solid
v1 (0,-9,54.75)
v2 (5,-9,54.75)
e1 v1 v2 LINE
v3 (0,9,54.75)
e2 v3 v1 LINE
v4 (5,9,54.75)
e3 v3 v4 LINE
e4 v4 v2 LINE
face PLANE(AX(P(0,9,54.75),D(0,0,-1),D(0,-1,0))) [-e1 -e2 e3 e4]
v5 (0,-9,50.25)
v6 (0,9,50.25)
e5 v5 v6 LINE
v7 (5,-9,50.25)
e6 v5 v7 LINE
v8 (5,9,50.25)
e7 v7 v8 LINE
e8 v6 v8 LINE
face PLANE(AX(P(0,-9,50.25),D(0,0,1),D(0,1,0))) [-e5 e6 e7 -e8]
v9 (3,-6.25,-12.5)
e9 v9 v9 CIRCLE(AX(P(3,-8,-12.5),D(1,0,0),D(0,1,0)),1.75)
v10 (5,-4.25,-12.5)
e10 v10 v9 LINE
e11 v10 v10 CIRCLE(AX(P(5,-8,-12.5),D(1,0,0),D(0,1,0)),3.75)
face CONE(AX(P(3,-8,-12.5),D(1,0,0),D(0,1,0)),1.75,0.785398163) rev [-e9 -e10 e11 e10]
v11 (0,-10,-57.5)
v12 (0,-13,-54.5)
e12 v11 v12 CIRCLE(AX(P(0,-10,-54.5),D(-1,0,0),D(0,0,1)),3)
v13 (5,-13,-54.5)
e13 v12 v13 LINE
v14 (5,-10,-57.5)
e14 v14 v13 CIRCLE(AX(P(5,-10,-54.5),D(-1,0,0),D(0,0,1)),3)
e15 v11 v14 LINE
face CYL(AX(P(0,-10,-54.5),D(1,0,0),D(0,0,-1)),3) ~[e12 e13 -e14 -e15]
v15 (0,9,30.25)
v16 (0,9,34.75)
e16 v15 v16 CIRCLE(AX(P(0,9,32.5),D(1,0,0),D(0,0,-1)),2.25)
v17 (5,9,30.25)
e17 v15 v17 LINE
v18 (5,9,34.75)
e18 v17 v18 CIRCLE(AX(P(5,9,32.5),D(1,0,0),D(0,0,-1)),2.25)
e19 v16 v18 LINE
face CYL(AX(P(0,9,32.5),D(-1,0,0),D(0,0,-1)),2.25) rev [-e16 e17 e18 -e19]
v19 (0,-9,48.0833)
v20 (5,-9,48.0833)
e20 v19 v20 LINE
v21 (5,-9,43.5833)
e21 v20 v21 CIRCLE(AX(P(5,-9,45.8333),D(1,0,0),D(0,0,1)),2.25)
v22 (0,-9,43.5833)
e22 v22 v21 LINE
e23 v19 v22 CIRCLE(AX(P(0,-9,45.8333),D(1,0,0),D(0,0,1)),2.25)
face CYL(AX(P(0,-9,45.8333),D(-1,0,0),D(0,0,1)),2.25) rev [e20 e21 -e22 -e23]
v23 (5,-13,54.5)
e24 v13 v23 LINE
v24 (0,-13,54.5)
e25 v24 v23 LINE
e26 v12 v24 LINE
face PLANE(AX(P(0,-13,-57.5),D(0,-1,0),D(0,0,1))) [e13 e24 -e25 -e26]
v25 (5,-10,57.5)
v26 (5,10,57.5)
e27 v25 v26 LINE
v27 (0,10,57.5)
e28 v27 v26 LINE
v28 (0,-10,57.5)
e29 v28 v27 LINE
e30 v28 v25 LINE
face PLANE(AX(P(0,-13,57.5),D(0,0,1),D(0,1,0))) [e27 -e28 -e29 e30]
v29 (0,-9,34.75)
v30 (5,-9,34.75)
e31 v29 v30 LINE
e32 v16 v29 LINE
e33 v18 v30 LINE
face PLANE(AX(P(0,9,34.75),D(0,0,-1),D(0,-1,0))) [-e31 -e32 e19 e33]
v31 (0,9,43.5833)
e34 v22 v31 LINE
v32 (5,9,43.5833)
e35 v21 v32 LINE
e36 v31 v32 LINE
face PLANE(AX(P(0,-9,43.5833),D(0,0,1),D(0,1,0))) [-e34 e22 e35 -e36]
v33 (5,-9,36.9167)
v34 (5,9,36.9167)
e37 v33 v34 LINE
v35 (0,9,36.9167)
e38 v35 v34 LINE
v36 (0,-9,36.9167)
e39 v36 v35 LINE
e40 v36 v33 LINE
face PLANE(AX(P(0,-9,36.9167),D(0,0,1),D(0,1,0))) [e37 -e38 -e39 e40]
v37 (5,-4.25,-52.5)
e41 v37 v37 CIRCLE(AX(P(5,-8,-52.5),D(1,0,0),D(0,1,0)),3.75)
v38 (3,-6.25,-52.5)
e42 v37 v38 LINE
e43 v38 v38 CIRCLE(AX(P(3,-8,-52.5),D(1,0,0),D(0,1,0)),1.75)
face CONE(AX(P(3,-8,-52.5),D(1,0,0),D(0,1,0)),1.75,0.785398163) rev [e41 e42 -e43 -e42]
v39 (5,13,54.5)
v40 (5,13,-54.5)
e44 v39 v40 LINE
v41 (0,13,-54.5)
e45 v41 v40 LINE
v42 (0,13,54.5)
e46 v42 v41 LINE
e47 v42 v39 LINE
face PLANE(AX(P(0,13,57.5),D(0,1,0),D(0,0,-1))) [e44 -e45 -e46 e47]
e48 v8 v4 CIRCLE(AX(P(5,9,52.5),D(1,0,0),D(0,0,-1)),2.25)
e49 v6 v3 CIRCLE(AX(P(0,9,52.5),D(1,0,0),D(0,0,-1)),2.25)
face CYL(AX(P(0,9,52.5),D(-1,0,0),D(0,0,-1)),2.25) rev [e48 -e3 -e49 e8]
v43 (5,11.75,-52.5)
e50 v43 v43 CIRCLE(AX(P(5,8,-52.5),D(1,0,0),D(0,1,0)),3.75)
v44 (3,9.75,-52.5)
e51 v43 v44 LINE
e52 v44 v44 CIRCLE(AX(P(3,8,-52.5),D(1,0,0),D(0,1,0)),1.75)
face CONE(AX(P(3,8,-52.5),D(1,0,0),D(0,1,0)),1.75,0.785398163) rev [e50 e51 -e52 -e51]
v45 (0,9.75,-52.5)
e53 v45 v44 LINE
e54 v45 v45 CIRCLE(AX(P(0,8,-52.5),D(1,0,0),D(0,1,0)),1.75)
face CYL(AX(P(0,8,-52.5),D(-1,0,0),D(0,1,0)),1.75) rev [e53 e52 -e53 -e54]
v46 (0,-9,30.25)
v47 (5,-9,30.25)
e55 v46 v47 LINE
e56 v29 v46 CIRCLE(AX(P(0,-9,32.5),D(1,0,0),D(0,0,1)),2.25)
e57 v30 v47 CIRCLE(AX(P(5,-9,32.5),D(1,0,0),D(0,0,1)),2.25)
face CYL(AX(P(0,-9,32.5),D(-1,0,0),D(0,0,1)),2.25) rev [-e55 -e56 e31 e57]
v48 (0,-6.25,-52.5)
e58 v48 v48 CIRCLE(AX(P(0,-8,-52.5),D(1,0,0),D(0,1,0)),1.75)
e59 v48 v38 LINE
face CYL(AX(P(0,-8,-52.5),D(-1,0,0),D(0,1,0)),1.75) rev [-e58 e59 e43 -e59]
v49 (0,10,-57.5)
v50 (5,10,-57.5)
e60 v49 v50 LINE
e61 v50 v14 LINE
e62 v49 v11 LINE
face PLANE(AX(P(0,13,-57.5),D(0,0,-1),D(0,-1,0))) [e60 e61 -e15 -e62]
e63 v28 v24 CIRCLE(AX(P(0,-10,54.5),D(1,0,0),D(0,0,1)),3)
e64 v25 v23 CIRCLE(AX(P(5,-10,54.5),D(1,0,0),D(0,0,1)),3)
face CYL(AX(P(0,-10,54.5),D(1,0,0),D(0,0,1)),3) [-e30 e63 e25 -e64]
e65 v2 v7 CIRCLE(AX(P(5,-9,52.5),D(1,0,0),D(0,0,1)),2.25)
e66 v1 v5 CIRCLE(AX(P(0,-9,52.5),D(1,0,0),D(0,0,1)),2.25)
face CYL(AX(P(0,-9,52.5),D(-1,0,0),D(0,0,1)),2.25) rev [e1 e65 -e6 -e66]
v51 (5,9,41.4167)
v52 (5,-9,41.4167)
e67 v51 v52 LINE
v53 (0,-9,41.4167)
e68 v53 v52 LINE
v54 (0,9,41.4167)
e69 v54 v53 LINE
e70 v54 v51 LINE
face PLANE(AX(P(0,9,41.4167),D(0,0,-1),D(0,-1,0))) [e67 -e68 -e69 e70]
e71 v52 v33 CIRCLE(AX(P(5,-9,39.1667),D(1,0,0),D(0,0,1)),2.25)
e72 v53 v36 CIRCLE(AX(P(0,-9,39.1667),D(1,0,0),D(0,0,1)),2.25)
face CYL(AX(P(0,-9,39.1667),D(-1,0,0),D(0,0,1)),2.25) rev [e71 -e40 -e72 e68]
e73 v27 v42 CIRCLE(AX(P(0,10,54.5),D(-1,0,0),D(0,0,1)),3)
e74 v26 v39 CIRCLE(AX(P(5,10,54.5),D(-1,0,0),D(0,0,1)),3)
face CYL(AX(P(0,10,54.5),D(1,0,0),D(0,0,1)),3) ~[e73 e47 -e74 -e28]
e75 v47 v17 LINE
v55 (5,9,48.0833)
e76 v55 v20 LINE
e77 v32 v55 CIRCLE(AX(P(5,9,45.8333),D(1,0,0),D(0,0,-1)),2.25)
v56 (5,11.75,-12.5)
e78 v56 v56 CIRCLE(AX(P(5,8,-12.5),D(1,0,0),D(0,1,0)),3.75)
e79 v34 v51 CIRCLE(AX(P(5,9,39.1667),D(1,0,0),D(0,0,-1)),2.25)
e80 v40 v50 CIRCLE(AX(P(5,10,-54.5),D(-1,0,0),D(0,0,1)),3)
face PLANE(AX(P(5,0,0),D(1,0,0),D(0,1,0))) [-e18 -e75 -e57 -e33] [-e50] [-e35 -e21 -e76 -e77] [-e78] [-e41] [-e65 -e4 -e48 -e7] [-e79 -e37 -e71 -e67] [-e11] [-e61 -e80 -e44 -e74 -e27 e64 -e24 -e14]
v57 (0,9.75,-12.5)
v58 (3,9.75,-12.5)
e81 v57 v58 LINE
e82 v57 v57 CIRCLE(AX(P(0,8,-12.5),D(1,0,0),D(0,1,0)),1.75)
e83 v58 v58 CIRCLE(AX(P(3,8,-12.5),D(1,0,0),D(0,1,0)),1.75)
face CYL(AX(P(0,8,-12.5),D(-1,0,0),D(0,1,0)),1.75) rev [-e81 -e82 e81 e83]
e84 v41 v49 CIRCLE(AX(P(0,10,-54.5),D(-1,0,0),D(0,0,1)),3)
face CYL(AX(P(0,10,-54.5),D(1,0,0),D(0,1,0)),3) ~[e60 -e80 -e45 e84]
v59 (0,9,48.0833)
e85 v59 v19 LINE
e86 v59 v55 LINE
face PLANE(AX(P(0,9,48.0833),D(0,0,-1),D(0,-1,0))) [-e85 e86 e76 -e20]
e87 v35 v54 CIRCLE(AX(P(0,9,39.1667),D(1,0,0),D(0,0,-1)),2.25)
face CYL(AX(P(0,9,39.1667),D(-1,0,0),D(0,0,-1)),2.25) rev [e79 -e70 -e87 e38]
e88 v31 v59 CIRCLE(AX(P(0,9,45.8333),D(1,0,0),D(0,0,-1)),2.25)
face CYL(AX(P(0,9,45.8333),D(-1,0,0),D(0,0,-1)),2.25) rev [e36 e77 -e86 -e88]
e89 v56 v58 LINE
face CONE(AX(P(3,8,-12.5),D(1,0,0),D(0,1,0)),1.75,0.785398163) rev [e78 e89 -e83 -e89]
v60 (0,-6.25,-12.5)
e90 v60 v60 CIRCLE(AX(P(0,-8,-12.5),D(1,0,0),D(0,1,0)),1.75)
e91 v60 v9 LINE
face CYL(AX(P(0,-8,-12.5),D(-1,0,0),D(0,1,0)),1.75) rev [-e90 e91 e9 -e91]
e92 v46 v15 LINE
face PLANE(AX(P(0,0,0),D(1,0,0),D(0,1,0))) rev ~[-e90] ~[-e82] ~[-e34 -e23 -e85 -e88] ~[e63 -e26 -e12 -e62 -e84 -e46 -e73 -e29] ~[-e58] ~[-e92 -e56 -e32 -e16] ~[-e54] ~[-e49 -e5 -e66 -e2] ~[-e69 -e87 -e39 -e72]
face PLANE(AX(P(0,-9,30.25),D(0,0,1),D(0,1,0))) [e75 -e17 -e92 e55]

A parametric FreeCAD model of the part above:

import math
import FreeCAD as App
import Part
import Sketcher


def edges_at(feature, points):
    """Names of the edges that pass closest to the given points."""
    edges = feature.Shape.Edges
    near = lambda p: min(range(len(edges)), key=lambda i: edges[i].distToShape(Part.Vertex(*p))[0])
    return sorted({f"Edge{near(p) + 1}" for p in points})

doc = App.newDocument("Part")
body = doc.addObject("PartDesign::Body", "Body")

sketch1 = body.newObject("Sketcher::SketchObject", "Sketch")
sketch1.AttachmentSupport = (doc.getObject("YZ_Plane"), [""])
sketch1.MapMode = "FlatFace"
sketch1.addGeometry([
    Part.LineSegment(App.Vector(13, 57.5, 0), App.Vector(-13, 57.5, 0)),
    Part.LineSegment(App.Vector(-13, 57.5, 0), App.Vector(-13, -57.5, 0)),
    Part.LineSegment(App.Vector(-13, -57.5, 0), App.Vector(13, -57.5, 0)),
    Part.LineSegment(App.Vector(13, -57.5, 0), App.Vector(13, 57.5, 0)),
    Part.Circle(App.Vector(-8, -52.5, 0), App.Vector(0, 0, 1), 1.8),
    Part.Circle(App.Vector(-8, -12.5, 0), App.Vector(0, 0, 1), 1.8),
    Part.Circle(App.Vector(8, -52.5, 0), App.Vector(0, 0, 1), 1.8),
    Part.Circle(App.Vector(8, -12.5, 0), App.Vector(0, 0, 1), 1.8),
    Part.LineSegment(App.Vector(9, 30.2, 0), App.Vector(-9, 30.2, 0)),
    Part.ArcOfCircle(Part.Circle(App.Vector(-9, 32.5, 0), App.Vector(0, 0, 1), 2.2), math.radians(90), math.radians(270)),
    Part.LineSegment(App.Vector(-9, 34.8, 0), App.Vector(9, 34.8, 0)),
    Part.ArcOfCircle(Part.Circle(App.Vector(9, 32.5, 0), App.Vector(0, 0, 1), 2.2), math.radians(-90), math.radians(90)),
    Part.ArcOfCircle(Part.Circle(App.Vector(-9, 39.2, 0), App.Vector(0, 0, 1), 2.2), math.radians(90), math.radians(270)),
    Part.LineSegment(App.Vector(-9, 41.4, 0), App.Vector(9, 41.4, 0)),
    Part.ArcOfCircle(Part.Circle(App.Vector(9, 39.2, 0), App.Vector(0, 0, 1), 2.2), math.radians(-90), math.radians(90)),
    Part.LineSegment(App.Vector(9, 36.9, 0), App.Vector(-9, 36.9, 0)),
    Part.ArcOfCircle(Part.Circle(App.Vector(-9, 45.8, 0), App.Vector(0, 0, 1), 2.2), math.radians(90), math.radians(270)),
    Part.LineSegment(App.Vector(-9, 48.1, 0), App.Vector(9, 48.1, 0)),
    Part.ArcOfCircle(Part.Circle(App.Vector(9, 45.8, 0), App.Vector(0, 0, 1), 2.2), math.radians(-90), math.radians(90)),
    Part.LineSegment(App.Vector(9, 43.6, 0), App.Vector(-9, 43.6, 0)),
    Part.ArcOfCircle(Part.Circle(App.Vector(-9, 52.5, 0), App.Vector(0, 0, 1), 2.2), math.radians(90), math.radians(270)),
    Part.LineSegment(App.Vector(-9, 54.8, 0), App.Vector(9, 54.8, 0)),
    Part.ArcOfCircle(Part.Circle(App.Vector(9, 52.5, 0), App.Vector(0, 0, 1), 2.2), math.radians(-90), math.radians(90)),
    Part.LineSegment(App.Vector(9, 50.2, 0), App.Vector(-9, 50.2, 0)),
], False)
sketch1.addConstraint([
    Sketcher.Constraint("Coincident", 0, 2, 1, 1),
    Sketcher.Constraint("Coincident", 1, 2, 2, 1),
    Sketcher.Constraint("Coincident", 2, 2, 3, 1),
    Sketcher.Constraint("Coincident", 3, 2, 0, 1),
    Sketcher.Constraint("Tangent", 8, 2, 9, 2),
    Sketcher.Constraint("Tangent", 9, 1, 10, 1),
    Sketcher.Constraint("Tangent", 10, 2, 11, 2),
    Sketcher.Constraint("Tangent", 11, 1, 8, 1),
    Sketcher.Constraint("Tangent", 12, 1, 13, 1),
    Sketcher.Constraint("Tangent", 13, 2, 14, 2),
    Sketcher.Constraint("Tangent", 14, 1, 15, 1),
    Sketcher.Constraint("Tangent", 15, 2, 12, 2),
    Sketcher.Constraint("Tangent", 16, 1, 17, 1),
    Sketcher.Constraint("Tangent", 17, 2, 18, 2),
    Sketcher.Constraint("Tangent", 18, 1, 19, 1),
    Sketcher.Constraint("Tangent", 19, 2, 16, 2),
    Sketcher.Constraint("Tangent", 20, 1, 21, 1),
    Sketcher.Constraint("Tangent", 21, 2, 22, 2),
    Sketcher.Constraint("Tangent", 22, 1, 23, 1),
    Sketcher.Constraint("Tangent", 23, 2, 20, 2),
    Sketcher.Constraint("Horizontal", 0),
    Sketcher.Constraint("Vertical", 1),
    Sketcher.Constraint("Horizontal", 2),
    Sketcher.Constraint("Vertical", 3),
    Sketcher.Constraint("Horizontal", 8),
    Sketcher.Constraint("Horizontal", 10),
    Sketcher.Constraint("Horizontal", 13),
    Sketcher.Constraint("Horizontal", 15),
    Sketcher.Constraint("Horizontal", 17),
    Sketcher.Constraint("Horizontal", 19),
    Sketcher.Constraint("Horizontal", 21),
    Sketcher.Constraint("Horizontal", 23),
    Sketcher.Constraint("Equal", 4, 5),
    Sketcher.Constraint("Equal", 5, 6),
    Sketcher.Constraint("Equal", 6, 7),
    Sketcher.Constraint("Equal", 11, 12),
    Sketcher.Constraint("Equal", 14, 16),
    Sketcher.Constraint("Equal", 18, 20),
    Sketcher.Constraint("Symmetric", 0, 2, 2, 2, -1, 1),
    Sketcher.Constraint("Symmetric", 4, 3, 6, 3, -2),
    Sketcher.Constraint("Symmetric", 5, 3, 7, 3, -2),
    Sketcher.Constraint("Vertical", 4, 3, 5, 3),
    Sketcher.Constraint("Vertical", 9, 3, 12, 3),
    Sketcher.Constraint("Vertical", 11, 3, 14, 3),
    Sketcher.Constraint("Vertical", 12, 3, 16, 3),
    Sketcher.Constraint("Vertical", 14, 3, 18, 3),
    Sketcher.Constraint("Vertical", 16, 3, 20, 3),
    Sketcher.Constraint("Vertical", 18, 3, 22, 3),
    Sketcher.Constraint("Diameter", 4, 3.5),
    Sketcher.Constraint("DistanceX", 8, 2, 8, 1, 18.0),
    Sketcher.Constraint("Radius", 9, 2.25),
    Sketcher.Constraint("DistanceX", 4, 3, -1, 1, 8.0),
    Sketcher.Constraint("DistanceX", 9, 3, -1, 1, 9.0),
    Sketcher.Constraint("DistanceY", 4, 3, 5, 3, 40.0),
    Sketcher.Constraint("DistanceY", 5, 3, 9, 3, 45.0),
    Sketcher.Constraint("DistanceY", 9, 3, 20, 3, 20.0),
    Sketcher.Constraint("DistanceY", 20, 3, 0, 2, 5.0),
    Sketcher.Constraint("DistanceX", 1, 2, 4, 3, 5.0),
    Sketcher.Constraint("DistanceY", 1, 2, 4, 3, 5.0),
    Sketcher.Constraint("DistanceY", -1, 1, 12, 3, 39.1667),
    Sketcher.Constraint("DistanceY", -1, 1, 16, 3, 45.8333),
])
pad1 = body.newObject("PartDesign::Pad", "Pad")
pad1.Profile = sketch1
pad1.Length = 5
doc.recompute()

fillet = body.newObject("PartDesign::Fillet", "Fillet")
fillet.Base = (pad1, edges_at(pad1, [
    (2.5, -13, 57.5),
    (2.5, 13, 57.5),
    (2.5, -13, -57.5),
    (2.5, 13, -57.5),
]))
fillet.Radius = 3
doc.recompute()

chamfer = body.newObject("PartDesign::Chamfer", "Chamfer")
chamfer.Base = (fillet, edges_at(fillet, [(5, -9.632, -11.867)]))
chamfer.Size = 2
doc.recompute()

chamfer2 = body.newObject("PartDesign::Chamfer", "Chamfer001")
chamfer2.Base = (chamfer, edges_at(chamfer, [(5, 6.368, -11.867), (5, -9.632, -51.867), (5, 6.368, -51.867)]))
chamfer2.Size = 2

doc.recompute()
